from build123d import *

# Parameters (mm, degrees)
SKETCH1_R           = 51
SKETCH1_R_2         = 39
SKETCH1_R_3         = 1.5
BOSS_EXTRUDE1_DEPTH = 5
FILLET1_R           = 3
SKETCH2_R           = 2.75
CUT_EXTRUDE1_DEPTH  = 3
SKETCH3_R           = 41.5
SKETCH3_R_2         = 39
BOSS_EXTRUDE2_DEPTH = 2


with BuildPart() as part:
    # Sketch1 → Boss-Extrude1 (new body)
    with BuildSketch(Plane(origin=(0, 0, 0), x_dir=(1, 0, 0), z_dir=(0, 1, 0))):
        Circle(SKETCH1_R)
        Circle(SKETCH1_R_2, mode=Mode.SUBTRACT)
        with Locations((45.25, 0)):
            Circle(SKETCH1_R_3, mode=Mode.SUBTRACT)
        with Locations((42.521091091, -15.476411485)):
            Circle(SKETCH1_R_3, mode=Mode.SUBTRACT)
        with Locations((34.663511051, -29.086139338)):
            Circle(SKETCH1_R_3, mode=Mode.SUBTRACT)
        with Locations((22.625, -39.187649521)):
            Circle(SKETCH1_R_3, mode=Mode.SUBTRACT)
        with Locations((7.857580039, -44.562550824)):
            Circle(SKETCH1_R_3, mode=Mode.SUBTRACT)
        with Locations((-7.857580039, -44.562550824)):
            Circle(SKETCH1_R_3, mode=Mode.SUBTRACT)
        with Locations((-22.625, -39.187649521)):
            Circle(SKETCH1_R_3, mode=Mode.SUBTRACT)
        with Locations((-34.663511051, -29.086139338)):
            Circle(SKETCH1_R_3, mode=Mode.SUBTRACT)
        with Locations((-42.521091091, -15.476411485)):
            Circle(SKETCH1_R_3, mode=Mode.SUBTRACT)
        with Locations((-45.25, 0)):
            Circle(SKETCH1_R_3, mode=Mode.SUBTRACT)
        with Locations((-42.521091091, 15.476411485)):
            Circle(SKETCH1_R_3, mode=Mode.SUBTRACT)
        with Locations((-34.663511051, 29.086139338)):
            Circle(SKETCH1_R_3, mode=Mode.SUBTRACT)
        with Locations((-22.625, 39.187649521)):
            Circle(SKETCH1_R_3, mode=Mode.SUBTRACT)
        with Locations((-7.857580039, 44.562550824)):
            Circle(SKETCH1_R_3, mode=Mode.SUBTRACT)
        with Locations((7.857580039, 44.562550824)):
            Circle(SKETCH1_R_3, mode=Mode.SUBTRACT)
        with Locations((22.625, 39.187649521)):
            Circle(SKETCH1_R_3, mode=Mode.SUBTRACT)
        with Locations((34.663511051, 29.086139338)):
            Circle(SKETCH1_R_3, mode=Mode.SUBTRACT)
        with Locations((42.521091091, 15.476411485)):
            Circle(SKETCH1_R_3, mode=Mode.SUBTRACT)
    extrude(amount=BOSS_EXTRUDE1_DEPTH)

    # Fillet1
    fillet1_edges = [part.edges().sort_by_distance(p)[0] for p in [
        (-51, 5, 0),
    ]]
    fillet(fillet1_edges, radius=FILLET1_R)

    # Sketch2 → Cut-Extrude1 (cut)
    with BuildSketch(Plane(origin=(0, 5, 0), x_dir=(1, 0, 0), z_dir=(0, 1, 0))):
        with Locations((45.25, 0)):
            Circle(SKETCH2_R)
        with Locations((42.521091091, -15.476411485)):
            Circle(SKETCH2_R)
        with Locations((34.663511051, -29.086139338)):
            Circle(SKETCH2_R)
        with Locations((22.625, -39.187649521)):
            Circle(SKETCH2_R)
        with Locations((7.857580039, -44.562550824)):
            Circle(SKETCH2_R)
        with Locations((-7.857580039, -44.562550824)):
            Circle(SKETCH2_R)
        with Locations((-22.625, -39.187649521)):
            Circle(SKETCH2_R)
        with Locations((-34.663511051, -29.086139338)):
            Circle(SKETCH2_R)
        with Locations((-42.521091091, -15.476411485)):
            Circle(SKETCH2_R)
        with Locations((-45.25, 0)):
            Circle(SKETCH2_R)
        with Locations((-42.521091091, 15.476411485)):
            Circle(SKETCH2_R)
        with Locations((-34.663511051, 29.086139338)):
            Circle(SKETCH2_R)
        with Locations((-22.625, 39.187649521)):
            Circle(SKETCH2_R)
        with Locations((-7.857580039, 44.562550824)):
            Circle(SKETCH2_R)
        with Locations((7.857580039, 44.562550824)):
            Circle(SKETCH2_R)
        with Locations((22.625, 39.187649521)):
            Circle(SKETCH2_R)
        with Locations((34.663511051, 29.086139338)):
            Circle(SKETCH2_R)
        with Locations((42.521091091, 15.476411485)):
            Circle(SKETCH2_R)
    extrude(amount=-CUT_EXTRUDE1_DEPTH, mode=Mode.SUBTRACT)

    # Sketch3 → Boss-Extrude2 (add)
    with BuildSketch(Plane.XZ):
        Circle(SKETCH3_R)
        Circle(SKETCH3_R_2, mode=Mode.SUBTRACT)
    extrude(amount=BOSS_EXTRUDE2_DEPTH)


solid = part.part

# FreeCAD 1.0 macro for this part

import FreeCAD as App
import Part
import Sketcher
from FreeCAD import Vector
Q = App.Units.Quantity


def edges_at(feature, points):
    """Names of the edges that pass closest to the given points."""
    edges = feature.Shape.Edges
    near = lambda p: min(range(len(edges)), key=lambda i: edges[i].distToShape(Part.Vertex(*p))[0])
    return sorted({f"Edge{near(p) + 1}" for p in points})

doc = App.newDocument("Part")
body = doc.addObject("PartDesign::Body", "Body")

sketch1 = doc.addObject("Sketcher::SketchObject", "Sketch")
body.addObject(sketch1)
sketch1.AttachmentSupport = (doc.XZ_Plane, [""])
sketch1.MapMode = "FlatFace"
sketch1.addGeometry(Part.Circle(Vector(0, 0, 0), Vector(0, 0, 1), 51), False)
sketch1.addGeometry(Part.Circle(Vector(-34.663511, 29.086139, 0), Vector(0, 0, 1), 1.5), False)
sketch1.addGeometry(Part.Circle(Vector(-22.625, 39.18765, 0), Vector(0, 0, 1), 1.5), False)
sketch1.addGeometry(Part.Circle(Vector(-7.85758, 44.562551, 0), Vector(0, 0, 1), 1.5), False)
sketch1.addGeometry(Part.Circle(Vector(-42.521091, 15.476411, 0), Vector(0, 0, 1), 1.5), False)
sketch1.addGeometry(Part.Circle(Vector(-45.25, 0, 0), Vector(0, 0, 1), 1.5), False)
sketch1.addGeometry(Part.Circle(Vector(0, 0, 0), Vector(0, 0, 1), 39), False)
sketch1.addGeometry(Part.Circle(Vector(7.85758, 44.562551, 0), Vector(0, 0, 1), 1.5), False)
sketch1.addGeometry(Part.Circle(Vector(22.625, 39.18765, 0), Vector(0, 0, 1), 1.5), False)
sketch1.addGeometry(Part.Circle(Vector(34.663511, 29.086139, 0), Vector(0, 0, 1), 1.5), False)
sketch1.addGeometry(Part.Circle(Vector(42.521091, 15.476411, 0), Vector(0, 0, 1), 1.5), False)
sketch1.addGeometry(Part.Circle(Vector(45.25, 0, 0), Vector(0, 0, 1), 1.5), False)
sketch1.addGeometry(Part.Circle(Vector(-42.521091, -15.476411, 0), Vector(0, 0, 1), 1.5), False)
sketch1.addGeometry(Part.Circle(Vector(-34.663511, -29.086139, 0), Vector(0, 0, 1), 1.5), False)
sketch1.addGeometry(Part.Circle(Vector(-22.625, -39.18765, 0), Vector(0, 0, 1), 1.5), False)
sketch1.addGeometry(Part.Circle(Vector(-7.85758, -44.562551, 0), Vector(0, 0, 1), 1.5), False)
sketch1.addGeometry(Part.Circle(Vector(42.521091, -15.476411, 0), Vector(0, 0, 1), 1.5), False)
sketch1.addGeometry(Part.Circle(Vector(7.85758, -44.562551, 0), Vector(0, 0, 1), 1.5), False)
sketch1.addGeometry(Part.Circle(Vector(22.625, -39.18765, 0), Vector(0, 0, 1), 1.5), False)
sketch1.addGeometry(Part.Circle(Vector(34.663511, -29.086139, 0), Vector(0, 0, 1), 1.5), False)
sketch1.addConstraint(Sketcher.Constraint("Coincident", 0, 3, -1, 1))
sketch1.addConstraint(Sketcher.Constraint("Coincident", 6, 3, -1, 1))
sketch1.addConstraint(Sketcher.Constraint("Equal", 1, 2))
sketch1.addConstraint(Sketcher.Constraint("Equal", 2, 3))
sketch1.addConstraint(Sketcher.Constraint("Equal", 3, 4))
sketch1.addConstraint(Sketcher.Constraint("Equal", 4, 5))
sketch1.addConstraint(Sketcher.Constraint("Equal", 5, 7))
sketch1.addConstraint(Sketcher.Constraint("Equal", 7, 8))
sketch1.addConstraint(Sketcher.Constraint("Equal", 8, 9))
sketch1.addConstraint(Sketcher.Constraint("Equal", 9, 10))
sketch1.addConstraint(Sketcher.Constraint("Equal", 10, 11))
sketch1.addConstraint(Sketcher.Constraint("Equal", 11, 12))
sketch1.addConstraint(Sketcher.Constraint("Equal", 12, 13))
sketch1.addConstraint(Sketcher.Constraint("Equal", 13, 14))
sketch1.addConstraint(Sketcher.Constraint("Equal", 14, 15))
sketch1.addConstraint(Sketcher.Constraint("Equal", 15, 16))
sketch1.addConstraint(Sketcher.Constraint("Equal", 16, 17))
sketch1.addConstraint(Sketcher.Constraint("Equal", 17, 18))
sketch1.addConstraint(Sketcher.Constraint("Equal", 18, 19))
sketch1.addConstraint(Sketcher.Constraint("Symmetric", 5, 3, 11, 3, -1, 1))
sketch1.addConstraint(Sketcher.Constraint("Symmetric", 10, 3, 12, 3, -1, 1))
sketch1.addConstraint(Sketcher.Constraint("Symmetric", 9, 3, 13, 3, -1, 1))
sketch1.addConstraint(Sketcher.Constraint("Symmetric", 8, 3, 14, 3, -1, 1))
sketch1.addConstraint(Sketcher.Constraint("Symmetric", 7, 3, 15, 3, -1, 1))
sketch1.addConstraint(Sketcher.Constraint("Symmetric", 4, 3, 16, 3, -1, 1))
sketch1.addConstraint(Sketcher.Constraint("Symmetric", 3, 3, 17, 3, -1, 1))
sketch1.addConstraint(Sketcher.Constraint("Symmetric", 2, 3, 18, 3, -1, 1))
sketch1.addConstraint(Sketcher.Constraint("Symmetric", 1, 3, 19, 3, -1, 1))
sketch1.addConstraint(Sketcher.Constraint("Symmetric", 3, 3, 7, 3, -2))
sketch1.addConstraint(Sketcher.Constraint("Symmetric", 2, 3, 8, 3, -2))
sketch1.addConstraint(Sketcher.Constraint("Symmetric", 1, 3, 9, 3, -2))
sketch1.addConstraint(Sketcher.Constraint("Symmetric", 4, 3, 10, 3, -2))
sketch1.addConstraint(Sketcher.Constraint("PointOnObject", 5, 3, -1))
sketch1.addConstraint(Sketcher.Constraint("Diameter", 0, Q("102 mm")))
sketch1.addConstraint(Sketcher.Constraint("Diameter", 1, Q("3 mm")))
sketch1.addConstraint(Sketcher.Constraint("Diameter", 6, Q("78 mm")))
sketch1.addConstraint(Sketcher.Constraint("DistanceX", 5, 3, -1, 1, Q("45.25 mm")))
sketch1.addConstraint(Sketcher.Constraint("DistanceX", 2, 3, 8, 3, Q("45.25 mm")))
sketch1.addConstraint(Sketcher.Constraint("DistanceY", 2, 3, 3, 3, Q("5.374901 mm")))
sketch1.addConstraint(Sketcher.Constraint("DistanceX", 1, 3, -1, 1, Q("34.663511 mm")))
sketch1.addConstraint(Sketcher.Constraint("DistanceY", -1, 1, 1, 3, Q("29.086139 mm")))
sketch1.addConstraint(Sketcher.Constraint("DistanceY", -1, 1, 2, 3, Q("39.18765 mm")))
sketch1.addConstraint(Sketcher.Constraint("DistanceX", 3, 3, -1, 1, Q("7.85758 mm")))
sketch1.addConstraint(Sketcher.Constraint("DistanceX", 4, 3, -1, 1, Q("42.521091 mm")))
sketch1.addConstraint(Sketcher.Constraint("DistanceY", -1, 1, 4, 3, Q("15.476411 mm")))
pad1 = doc.addObject("PartDesign::Pad", "Pad")
body.addObject(pad1)
pad1.Profile = sketch1
pad1.Length = 5
pad1.Reversed = True
doc.recompute()

fillet = doc.addObject("PartDesign::Fillet", "Fillet")
body.addObject(fillet)
fillet.Base = (pad1, edges_at(pad1, [(-51, 5, 0)]))
fillet.Radius = 3

sketch2 = doc.addObject("Sketcher::SketchObject", "Sketch001")
body.addObject(sketch2)
sketch2.AttachmentSupport = (doc.XZ_Plane, [""])
sketch2.MapMode = "FlatFace"
sketch2.AttachmentOffset = App.Placement(Vector(0, 0, -5), App.Rotation())
sketch2.addGeometry(Part.Circle(Vector(45.25, 0, 0), Vector(0, 0, 1), 2.75), False)
sketch2.addGeometry(Part.Circle(Vector(42.521091, 15.476411, 0), Vector(0, 0, 1), 2.75), False)
sketch2.addGeometry(Part.Circle(Vector(34.663511, 29.086139, 0), Vector(0, 0, 1), 2.75), False)
sketch2.addGeometry(Part.Circle(Vector(22.625, 39.18765, 0), Vector(0, 0, 1), 2.75), False)
sketch2.addGeometry(Part.Circle(Vector(7.85758, 44.562551, 0), Vector(0, 0, 1), 2.75), False)
sketch2.addGeometry(Part.Circle(Vector(-7.85758, 44.562551, 0), Vector(0, 0, 1), 2.75), False)
sketch2.addGeometry(Part.Circle(Vector(-22.625, 39.18765, 0), Vector(0, 0, 1), 2.75), False)
sketch2.addGeometry(Part.Circle(Vector(-34.663511, 29.086139, 0), Vector(0, 0, 1), 2.75), False)
sketch2.addGeometry(Part.Circle(Vector(-42.521091, 15.476411, 0), Vector(0, 0, 1), 2.75), False)
sketch2.addGeometry(Part.Circle(Vector(-45.25, 0, 0), Vector(0, 0, 1), 2.75), False)
sketch2.addGeometry(Part.Circle(Vector(-42.521091, -15.476411, 0), Vector(0, 0, 1), 2.75), False)
sketch2.addGeometry(Part.Circle(Vector(-34.663511, -29.086139, 0), Vector(0, 0, 1), 2.75), False)
sketch2.addGeometry(Part.Circle(Vector(-22.625, -39.18765, 0), Vector(0, 0, 1), 2.75), False)
sketch2.addGeometry(Part.Circle(Vector(-7.85758, -44.562551, 0), Vector(0, 0, 1), 2.75), False)
sketch2.addGeometry(Part.Circle(Vector(7.85758, -44.562551, 0), Vector(0, 0, 1), 2.75), False)
sketch2.addGeometry(Part.Circle(Vector(22.625, -39.18765, 0), Vector(0, 0, 1), 2.75), False)
sketch2.addGeometry(Part.Circle(Vector(34.663511, -29.086139, 0), Vector(0, 0, 1), 2.75), False)
sketch2.addGeometry(Part.Circle(Vector(42.521091, -15.476411, 0), Vector(0, 0, 1), 2.75), False)
sketch2.addConstraint(Sketcher.Constraint("Equal", 0, 1))
sketch2.addConstraint(Sketcher.Constraint("Equal", 1, 2))
sketch2.addConstraint(Sketcher.Constraint("Equal", 2, 3))
sketch2.addConstraint(Sketcher.Constraint("Equal", 3, 4))
sketch2.addConstraint(Sketcher.Constraint("Equal", 4, 5))
sketch2.addConstraint(Sketcher.Constraint("Equal", 5, 6))
sketch2.addConstraint(Sketcher.Constraint("Equal", 6, 7))
sketch2.addConstraint(Sketcher.Constraint("Equal", 7, 8))
sketch2.addConstraint(Sketcher.Constraint("Equal", 8, 9))
sketch2.addConstraint(Sketcher.Constraint("Equal", 9, 10))
sketch2.addConstraint(Sketcher.Constraint("Equal", 10, 11))
sketch2.addConstraint(Sketcher.Constraint("Equal", 11, 12))
sketch2.addConstraint(Sketcher.Constraint("Equal", 12, 13))
sketch2.addConstraint(Sketcher.Constraint("Equal", 13, 14))
sketch2.addConstraint(Sketcher.Constraint("Equal", 14, 15))
sketch2.addConstraint(Sketcher.Constraint("Equal", 15, 16))
sketch2.addConstraint(Sketcher.Constraint("Equal", 16, 17))
sketch2.addConstraint(Sketcher.Constraint("Symmetric", 0, 3, 9, 3, -1, 1))
sketch2.addConstraint(Sketcher.Constraint("Symmetric", 1, 3, 10, 3, -1, 1))
sketch2.addConstraint(Sketcher.Constraint("Symmetric", 2, 3, 11, 3, -1, 1))
sketch2.addConstraint(Sketcher.Constraint("Symmetric", 3, 3, 12, 3, -1, 1))
sketch2.addConstraint(Sketcher.Constraint("Symmetric", 4, 3, 13, 3, -1, 1))
sketch2.addConstraint(Sketcher.Constraint("Symmetric", 5, 3, 14, 3, -1, 1))
sketch2.addConstraint(Sketcher.Constraint("Symmetric", 6, 3, 15, 3, -1, 1))
sketch2.addConstraint(Sketcher.Constraint("Symmetric", 7, 3, 16, 3, -1, 1))
sketch2.addConstraint(Sketcher.Constraint("Symmetric", 8, 3, 17, 3, -1, 1))
sketch2.addConstraint(Sketcher.Constraint("Symmetric", 4, 3, 5, 3, -2))
sketch2.addConstraint(Sketcher.Constraint("Symmetric", 3, 3, 6, 3, -2))
sketch2.addConstraint(Sketcher.Constraint("Symmetric", 2, 3, 7, 3, -2))
sketch2.addConstraint(Sketcher.Constraint("Symmetric", 1, 3, 8, 3, -2))
sketch2.addConstraint(Sketcher.Constraint("PointOnObject", 0, 3, -1))
sketch2.addConstraint(Sketcher.Constraint("Diameter", 0, Q("5.5 mm")))
sketch2.addConstraint(Sketcher.Constraint("DistanceX", -1, 1, 0, 3, Q("45.25 mm")))
sketch2.addConstraint(Sketcher.Constraint("DistanceX", 6, 3, 3, 3, Q("45.25 mm")))
sketch2.addConstraint(Sketcher.Constraint("DistanceY", 3, 3, 4, 3, Q("5.374901 mm")))
sketch2.addConstraint(Sketcher.Constraint("DistanceX", -1, 1, 1, 3, Q("42.521091 mm")))
sketch2.addConstraint(Sketcher.Constraint("DistanceY", -1, 1, 1, 3, Q("15.476411 mm")))
sketch2.addConstraint(Sketcher.Constraint("DistanceX", -1, 1, 2, 3, Q("34.663511 mm")))
sketch2.addConstraint(Sketcher.Constraint("DistanceY", -1, 1, 2, 3, Q("29.086139 mm")))
sketch2.addConstraint(Sketcher.Constraint("DistanceY", -1, 1, 3, 3, Q("39.18765 mm")))
sketch2.addConstraint(Sketcher.Constraint("DistanceX", -1, 1, 4, 3, Q("7.85758 mm")))
pocket1 = doc.addObject("PartDesign::Pocket", "Pocket")
body.addObject(pocket1)
pocket1.Profile = sketch2
pocket1.Length = 3
pocket1.Reversed = True

sketch3 = doc.addObject("Sketcher::SketchObject", "Sketch002")
body.addObject(sketch3)
sketch3.AttachmentSupport = (doc.XZ_Plane, [""])
sketch3.MapMode = "FlatFace"
sketch3.addGeometry(Part.Circle(Vector(0, 0, 0), Vector(0, 0, 1), 41.5), False)
sketch3.addGeometry(Part.Circle(Vector(0, 0, 0), Vector(0, 0, 1), 39), False)
sketch3.addConstraint(Sketcher.Constraint("Coincident", 0, 3, -1, 1))
sketch3.addConstraint(Sketcher.Constraint("Coincident", 1, 3, -1, 1))
sketch3.addConstraint(Sketcher.Constraint("Diameter", 0, Q("83 mm")))
sketch3.addConstraint(Sketcher.Constraint("Diameter", 1, Q("78 mm")))
pad2 = doc.addObject("PartDesign::Pad", "Pad001")
body.addObject(pad2)
pad2.Profile = sketch3
pad2.Length = 2

doc.recompute()
